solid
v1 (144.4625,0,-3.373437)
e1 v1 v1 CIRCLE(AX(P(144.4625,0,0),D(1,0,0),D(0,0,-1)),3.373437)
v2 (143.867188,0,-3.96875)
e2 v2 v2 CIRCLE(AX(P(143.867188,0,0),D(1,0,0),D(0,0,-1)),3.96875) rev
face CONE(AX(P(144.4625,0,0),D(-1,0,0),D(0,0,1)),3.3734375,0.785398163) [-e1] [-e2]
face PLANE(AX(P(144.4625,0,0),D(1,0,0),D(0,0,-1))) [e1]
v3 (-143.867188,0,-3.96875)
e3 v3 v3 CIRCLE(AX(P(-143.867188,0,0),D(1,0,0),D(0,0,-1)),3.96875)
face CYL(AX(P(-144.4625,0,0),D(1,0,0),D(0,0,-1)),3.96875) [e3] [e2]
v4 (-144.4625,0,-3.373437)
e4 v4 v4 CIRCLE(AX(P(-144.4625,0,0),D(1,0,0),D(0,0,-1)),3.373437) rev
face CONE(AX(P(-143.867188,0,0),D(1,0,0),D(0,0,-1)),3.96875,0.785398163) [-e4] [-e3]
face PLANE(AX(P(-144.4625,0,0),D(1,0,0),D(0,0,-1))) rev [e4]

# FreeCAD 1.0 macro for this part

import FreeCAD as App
import Part
import Sketcher
Q = App.Units.Quantity


def edges_at(feature, points):
    """Names of the edges that pass closest to the given points."""
    edges = feature.Shape.Edges
    near = lambda p: min(range(len(edges)), key=lambda i: edges[i].distToShape(Part.Vertex(*p))[0])
    return sorted({f"Edge{near(p) + 1}" for p in points})

doc = App.newDocument("Part")
params = doc.addObject("Spreadsheet::Sheet", "Params")
for row, (alias, value) in enumerate([
    ("sketch1_diameter", "0.3125 in"),
    ("pad1_length", "5.6875 in"),
    ("pad1_length2", "5.6875 in"),
    ("chamfer_size", "0.595313 mm"),
], start=1):
    params.set(f"A{row}", alias)
    params.set(f"B{row}", "=" + value)
    params.setAlias(f"B{row}", alias)

body = doc.addObject("PartDesign::Body", "Body")

# Sketch on YZ plane
sketch1 = doc.addObject("Sketcher::SketchObject", "Sketch")
body.addObject(sketch1)
sketch1.AttachmentSupport = (doc.YZ_Plane, [""])
sketch1.MapMode = "FlatFace"
sketch1.addGeometry(Part.Circle(App.Vector(0, 0, 0), App.Vector(0, 0, 1), 4), False)
sketch1.addConstraint([
    Sketcher.Constraint("Coincident", 0, 3, -1, 1),
    Sketcher.Constraint("Diameter", 0, Q("0.3125 in")),
])
sketch1.setExpression("Constraints[1]", "Params.sketch1_diameter")
pad1 = doc.addObject("PartDesign::Pad", "Pad")
body.addObject(pad1)
pad1.Profile = sketch1
pad1.Type = "TwoLengths"
pad1.setExpression("Length", "Params.pad1_length")
pad1.setExpression("Length2", "Params.pad1_length2")
doc.recompute()

chamfer = doc.addObject("PartDesign::Chamfer", "Chamfer")
body.addObject(chamfer)
chamfer.Base = (pad1, edges_at(pad1, [(-144.463, 0, 3.969), (144.463, 0, 3.969)]))
chamfer.setExpression("Size", "Params.chamfer_size")

doc.recompute()
